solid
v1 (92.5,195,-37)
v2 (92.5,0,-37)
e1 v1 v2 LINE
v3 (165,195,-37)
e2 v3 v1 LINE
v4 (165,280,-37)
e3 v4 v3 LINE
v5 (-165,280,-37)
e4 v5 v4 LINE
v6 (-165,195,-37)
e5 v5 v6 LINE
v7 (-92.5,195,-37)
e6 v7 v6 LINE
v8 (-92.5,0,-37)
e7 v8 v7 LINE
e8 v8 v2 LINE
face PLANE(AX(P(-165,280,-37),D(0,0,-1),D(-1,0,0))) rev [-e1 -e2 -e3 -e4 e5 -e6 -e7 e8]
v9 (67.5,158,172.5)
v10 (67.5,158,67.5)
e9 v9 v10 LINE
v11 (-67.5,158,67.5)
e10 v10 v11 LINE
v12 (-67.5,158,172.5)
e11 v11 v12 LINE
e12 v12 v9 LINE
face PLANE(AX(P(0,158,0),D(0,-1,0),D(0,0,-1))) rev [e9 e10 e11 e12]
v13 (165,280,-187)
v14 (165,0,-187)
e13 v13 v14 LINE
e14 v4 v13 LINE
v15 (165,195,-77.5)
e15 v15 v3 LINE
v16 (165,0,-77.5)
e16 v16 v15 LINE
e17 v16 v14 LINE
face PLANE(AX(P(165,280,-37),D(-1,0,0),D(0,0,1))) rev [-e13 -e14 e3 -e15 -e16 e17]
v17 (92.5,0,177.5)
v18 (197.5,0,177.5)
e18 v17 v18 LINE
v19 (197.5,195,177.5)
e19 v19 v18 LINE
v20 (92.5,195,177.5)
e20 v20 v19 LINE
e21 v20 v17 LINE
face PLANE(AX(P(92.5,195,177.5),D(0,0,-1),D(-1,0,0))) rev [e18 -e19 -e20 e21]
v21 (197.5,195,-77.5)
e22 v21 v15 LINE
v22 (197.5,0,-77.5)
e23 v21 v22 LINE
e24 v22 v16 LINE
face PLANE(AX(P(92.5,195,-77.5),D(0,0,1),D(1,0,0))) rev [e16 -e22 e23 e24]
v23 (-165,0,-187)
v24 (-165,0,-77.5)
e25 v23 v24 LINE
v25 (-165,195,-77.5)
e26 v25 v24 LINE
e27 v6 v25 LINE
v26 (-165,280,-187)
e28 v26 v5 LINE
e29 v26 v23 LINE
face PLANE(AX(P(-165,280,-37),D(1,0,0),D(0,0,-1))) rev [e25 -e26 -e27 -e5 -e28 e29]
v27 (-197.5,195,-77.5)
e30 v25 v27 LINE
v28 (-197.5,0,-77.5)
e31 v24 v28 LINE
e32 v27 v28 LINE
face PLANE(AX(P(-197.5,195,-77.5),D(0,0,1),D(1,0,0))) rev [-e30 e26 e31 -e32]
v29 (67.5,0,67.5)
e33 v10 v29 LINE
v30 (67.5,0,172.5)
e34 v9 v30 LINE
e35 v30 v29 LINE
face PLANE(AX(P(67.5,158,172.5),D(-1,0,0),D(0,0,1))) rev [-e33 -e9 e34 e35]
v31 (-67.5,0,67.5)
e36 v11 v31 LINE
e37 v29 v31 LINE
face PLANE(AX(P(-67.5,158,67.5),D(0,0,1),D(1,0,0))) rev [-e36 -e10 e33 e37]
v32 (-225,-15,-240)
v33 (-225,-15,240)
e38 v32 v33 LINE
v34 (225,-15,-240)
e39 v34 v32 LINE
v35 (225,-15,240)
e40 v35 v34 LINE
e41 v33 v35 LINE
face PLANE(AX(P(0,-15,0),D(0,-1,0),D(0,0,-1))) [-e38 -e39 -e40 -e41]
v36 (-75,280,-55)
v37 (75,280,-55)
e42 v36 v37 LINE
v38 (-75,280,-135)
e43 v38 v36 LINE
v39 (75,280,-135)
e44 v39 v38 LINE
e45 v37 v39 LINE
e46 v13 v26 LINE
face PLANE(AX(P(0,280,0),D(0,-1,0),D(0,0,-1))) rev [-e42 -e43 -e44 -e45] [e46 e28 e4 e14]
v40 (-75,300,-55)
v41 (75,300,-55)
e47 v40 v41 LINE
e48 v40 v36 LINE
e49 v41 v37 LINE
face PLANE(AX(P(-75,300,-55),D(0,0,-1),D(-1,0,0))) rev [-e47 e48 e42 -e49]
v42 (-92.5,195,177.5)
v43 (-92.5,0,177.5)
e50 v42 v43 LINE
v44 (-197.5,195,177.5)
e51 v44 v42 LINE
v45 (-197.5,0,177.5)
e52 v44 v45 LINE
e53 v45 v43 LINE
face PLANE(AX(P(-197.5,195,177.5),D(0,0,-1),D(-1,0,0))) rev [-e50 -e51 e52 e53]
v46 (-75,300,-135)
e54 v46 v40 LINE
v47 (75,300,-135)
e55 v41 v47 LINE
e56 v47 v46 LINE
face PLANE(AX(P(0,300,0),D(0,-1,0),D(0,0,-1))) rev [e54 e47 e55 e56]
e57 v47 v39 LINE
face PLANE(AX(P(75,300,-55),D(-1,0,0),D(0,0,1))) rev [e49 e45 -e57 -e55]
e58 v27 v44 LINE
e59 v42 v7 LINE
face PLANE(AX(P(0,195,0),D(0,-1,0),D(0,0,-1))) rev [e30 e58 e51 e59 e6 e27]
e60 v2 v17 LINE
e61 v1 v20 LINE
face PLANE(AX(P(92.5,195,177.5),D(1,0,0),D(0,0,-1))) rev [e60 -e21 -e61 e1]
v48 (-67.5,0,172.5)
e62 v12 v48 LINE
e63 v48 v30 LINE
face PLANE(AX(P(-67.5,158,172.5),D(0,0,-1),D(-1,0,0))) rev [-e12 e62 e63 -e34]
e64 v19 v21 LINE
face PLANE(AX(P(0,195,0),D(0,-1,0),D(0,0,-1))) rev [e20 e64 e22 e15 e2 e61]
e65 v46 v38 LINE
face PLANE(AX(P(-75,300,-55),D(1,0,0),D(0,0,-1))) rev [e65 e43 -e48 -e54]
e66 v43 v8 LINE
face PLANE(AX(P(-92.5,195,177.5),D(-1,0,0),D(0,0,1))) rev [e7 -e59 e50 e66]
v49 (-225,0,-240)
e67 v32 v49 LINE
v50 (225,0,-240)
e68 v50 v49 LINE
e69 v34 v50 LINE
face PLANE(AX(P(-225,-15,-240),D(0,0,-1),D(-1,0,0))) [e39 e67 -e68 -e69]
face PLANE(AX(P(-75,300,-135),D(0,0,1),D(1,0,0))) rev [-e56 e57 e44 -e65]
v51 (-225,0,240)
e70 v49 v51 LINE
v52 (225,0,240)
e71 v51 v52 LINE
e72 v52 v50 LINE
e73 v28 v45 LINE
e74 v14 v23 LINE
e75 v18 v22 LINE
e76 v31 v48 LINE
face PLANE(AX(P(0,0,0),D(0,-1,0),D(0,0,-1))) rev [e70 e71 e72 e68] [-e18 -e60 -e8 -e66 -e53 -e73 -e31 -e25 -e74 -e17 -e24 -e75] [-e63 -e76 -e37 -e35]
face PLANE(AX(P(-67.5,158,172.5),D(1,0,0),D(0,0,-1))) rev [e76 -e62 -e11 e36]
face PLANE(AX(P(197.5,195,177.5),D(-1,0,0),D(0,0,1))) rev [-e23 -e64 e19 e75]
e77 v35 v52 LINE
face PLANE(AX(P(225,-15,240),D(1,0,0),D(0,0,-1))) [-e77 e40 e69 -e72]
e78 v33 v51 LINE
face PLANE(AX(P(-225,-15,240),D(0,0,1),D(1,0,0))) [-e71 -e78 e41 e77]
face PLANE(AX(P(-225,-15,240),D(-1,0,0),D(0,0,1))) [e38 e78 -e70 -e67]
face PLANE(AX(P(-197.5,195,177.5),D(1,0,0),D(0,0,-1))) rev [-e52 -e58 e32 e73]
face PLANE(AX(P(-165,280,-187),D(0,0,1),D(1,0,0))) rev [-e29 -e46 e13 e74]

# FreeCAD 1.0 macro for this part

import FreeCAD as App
import Part
import Sketcher
from FreeCAD import Vector

doc = App.newDocument("Part")
body = doc.addObject("PartDesign::Body", "Body")

# Sketch on XZ plane
sketch1 = doc.addObject("Sketcher::SketchObject", "Sketch")
body.addObject(sketch1)
sketch1.AttachmentSupport = (doc.XZ_Plane, [""])
sketch1.MapMode = "FlatFace"
sketch1.addGeometry([
    Part.LineSegment(Vector(-225, -240, 0), Vector(-225, 240, 0)),
    Part.LineSegment(Vector(-225, 240, 0), Vector(225, 240, 0)),
    Part.LineSegment(Vector(225, 240, 0), Vector(225, -240, 0)),
    Part.LineSegment(Vector(225, -240, 0), Vector(-225, -240, 0)),
], False)
sketch1.addConstraint([
    Sketcher.Constraint("Coincident", 0, 2, 1, 1),
    Sketcher.Constraint("Coincident", 1, 2, 2, 1),
    Sketcher.Constraint("Coincident", 2, 2, 3, 1),
    Sketcher.Constraint("Coincident", 3, 2, 0, 1),
    Sketcher.Constraint("Vertical", 0),
    Sketcher.Constraint("Horizontal", 1),
    Sketcher.Constraint("Vertical", 2),
    Sketcher.Constraint("Horizontal", 3),
    Sketcher.Constraint("Symmetric", 0, 2, 2, 2, -1, 1),
    Sketcher.Constraint("DistanceX", 1, 1, 1, 2, 450.0),
    Sketcher.Constraint("DistanceY", 0, 1, 0, 2, 480.0),
])
pad1 = doc.addObject("PartDesign::Pad", "Pad")
body.addObject(pad1)
pad1.Profile = sketch1
pad1.Length = 15

# Sketch on XZ plane
sketch2 = doc.addObject("Sketcher::SketchObject", "Sketch001")
body.addObject(sketch2)
sketch2.AttachmentSupport = (doc.XZ_Plane, [""])
sketch2.MapMode = "FlatFace"
sketch2.addGeometry([
    Part.LineSegment(Vector(-165, -187, 0), Vector(-165, -37, 0)),
    Part.LineSegment(Vector(-165, -37, 0), Vector(165, -37, 0)),
    Part.LineSegment(Vector(165, -37, 0), Vector(165, -187, 0)),
    Part.LineSegment(Vector(165, -187, 0), Vector(-165, -187, 0)),
], False)
sketch2.addConstraint([
    Sketcher.Constraint("Coincident", 0, 2, 1, 1),
    Sketcher.Constraint("Coincident", 1, 2, 2, 1),
    Sketcher.Constraint("Coincident", 2, 2, 3, 1),
    Sketcher.Constraint("Coincident", 3, 2, 0, 1),
    Sketcher.Constraint("Vertical", 0),
    Sketcher.Constraint("Horizontal", 1),
    Sketcher.Constraint("Vertical", 2),
    Sketcher.Constraint("Horizontal", 3),
    Sketcher.Constraint("DistanceX", 1, 1, 1, 2, 330.0),
    Sketcher.Constraint("DistanceY", 0, 1, 0, 2, 150.0),
    Sketcher.Constraint("DistanceX", 0, 2, -1, 1, 165.0),
    Sketcher.Constraint("DistanceY", 0, 2, -1, 1, 37.0),
])
pad2 = doc.addObject("PartDesign::Pad", "Pad001")
body.addObject(pad2)
pad2.Profile = sketch2
pad2.Length = 280
pad2.Reversed = True

# Sketch on XZ plane
sketch3 = doc.addObject("Sketcher::SketchObject", "Sketch002")
body.addObject(sketch3)
sketch3.AttachmentSupport = (doc.XZ_Plane, [""])
sketch3.MapMode = "FlatFace"
sketch3.addGeometry([
    Part.LineSegment(Vector(-198, -78, 0), Vector(-198, 178, 0)),
    Part.LineSegment(Vector(-198, 178, 0), Vector(-92, 178, 0)),
    Part.LineSegment(Vector(-92, 178, 0), Vector(-92, -78, 0)),
    Part.LineSegment(Vector(-92, -78, 0), Vector(-198, -78, 0)),
], False)
sketch3.addConstraint([
    Sketcher.Constraint("Coincident", 0, 2, 1, 1),
    Sketcher.Constraint("Coincident", 1, 2, 2, 1),
    Sketcher.Constraint("Coincident", 2, 2, 3, 1),
    Sketcher.Constraint("Coincident", 3, 2, 0, 1),
    Sketcher.Constraint("Vertical", 0),
    Sketcher.Constraint("Horizontal", 1),
    Sketcher.Constraint("Vertical", 2),
    Sketcher.Constraint("Horizontal", 3),
    Sketcher.Constraint("DistanceX", 1, 1, 1, 2, 105.0),
    Sketcher.Constraint("DistanceY", 0, 1, 0, 2, 255.0),
    Sketcher.Constraint("DistanceX", 0, 2, -1, 1, 197.5),
    Sketcher.Constraint("DistanceY", -1, 1, 0, 2, 177.5),
])
pad3 = doc.addObject("PartDesign::Pad", "Pad002")
body.addObject(pad3)
pad3.Profile = sketch3
pad3.Length = 195
pad3.Reversed = True

# Sketch on XZ plane
sketch4 = doc.addObject("Sketcher::SketchObject", "Sketch003")
body.addObject(sketch4)
sketch4.AttachmentSupport = (doc.XZ_Plane, [""])
sketch4.MapMode = "FlatFace"
sketch4.addGeometry([
    Part.LineSegment(Vector(92, -78, 0), Vector(92, 178, 0)),
    Part.LineSegment(Vector(92, 178, 0), Vector(198, 178, 0)),
    Part.LineSegment(Vector(198, 178, 0), Vector(198, -78, 0)),
    Part.LineSegment(Vector(198, -78, 0), Vector(92, -78, 0)),
], False)
sketch4.addConstraint([
    Sketcher.Constraint("Coincident", 0, 2, 1, 1),
    Sketcher.Constraint("Coincident", 1, 2, 2, 1),
    Sketcher.Constraint("Coincident", 2, 2, 3, 1),
    Sketcher.Constraint("Coincident", 3, 2, 0, 1),
    Sketcher.Constraint("Vertical", 0),
    Sketcher.Constraint("Horizontal", 1),
    Sketcher.Constraint("Vertical", 2),
    Sketcher.Constraint("Horizontal", 3),
    Sketcher.Constraint("DistanceX", 1, 1, 1, 2, 105.0),
    Sketcher.Constraint("DistanceY", 0, 1, 0, 2, 255.0),
    Sketcher.Constraint("DistanceX", -1, 1, 0, 2, 92.5),
    Sketcher.Constraint("DistanceY", -1, 1, 0, 2, 177.5),
])
pad4 = doc.addObject("PartDesign::Pad", "Pad003")
body.addObject(pad4)
pad4.Profile = sketch4
pad4.Length = 195
pad4.Reversed = True

# Sketch on XZ plane
sketch5 = doc.addObject("Sketcher::SketchObject", "Sketch004")
body.addObject(sketch5)
sketch5.AttachmentSupport = (doc.XZ_Plane, [""])
sketch5.MapMode = "FlatFace"
sketch5.addGeometry([
    Part.LineSegment(Vector(-68, 68, 0), Vector(-68, 172, 0)),
    Part.LineSegment(Vector(-68, 172, 0), Vector(68, 172, 0)),
    Part.LineSegment(Vector(68, 172, 0), Vector(68, 68, 0)),
    Part.LineSegment(Vector(68, 68, 0), Vector(-68, 68, 0)),
], False)
sketch5.addConstraint([
    Sketcher.Constraint("Coincident", 0, 2, 1, 1),
    Sketcher.Constraint("Coincident", 1, 2, 2, 1),
    Sketcher.Constraint("Coincident", 2, 2, 3, 1),
    Sketcher.Constraint("Coincident", 3, 2, 0, 1),
    Sketcher.Constraint("Vertical", 0),
    Sketcher.Constraint("Horizontal", 1),
    Sketcher.Constraint("Vertical", 2),
    Sketcher.Constraint("Horizontal", 3),
    Sketcher.Constraint("DistanceX", 1, 1, 1, 2, 135.0),
    Sketcher.Constraint("DistanceY", 0, 1, 0, 2, 105.0),
    Sketcher.Constraint("DistanceX", 0, 2, -1, 1, 67.5),
    Sketcher.Constraint("DistanceY", -1, 1, 0, 2, 172.5),
])
pad5 = doc.addObject("PartDesign::Pad", "Pad004")
body.addObject(pad5)
pad5.Profile = sketch5
pad5.Length = 158
pad5.Reversed = True

# Sketch on XZ plane
sketch6 = doc.addObject("Sketcher::SketchObject", "Sketch005")
body.addObject(sketch6)
sketch6.AttachmentSupport = (doc.XZ_Plane, [""])
sketch6.MapMode = "FlatFace"
sketch6.addGeometry([
    Part.LineSegment(Vector(-75, -135, 0), Vector(-75, -55, 0)),
    Part.LineSegment(Vector(-75, -55, 0), Vector(75, -55, 0)),
    Part.LineSegment(Vector(75, -55, 0), Vector(75, -135, 0)),
    Part.LineSegment(Vector(75, -135, 0), Vector(-75, -135, 0)),
], False)
sketch6.addConstraint([
    Sketcher.Constraint("Coincident", 0, 2, 1, 1),
    Sketcher.Constraint("Coincident", 1, 2, 2, 1),
    Sketcher.Constraint("Coincident", 2, 2, 3, 1),
    Sketcher.Constraint("Coincident", 3, 2, 0, 1),
    Sketcher.Constraint("Vertical", 0),
    Sketcher.Constraint("Horizontal", 1),
    Sketcher.Constraint("Vertical", 2),
    Sketcher.Constraint("Horizontal", 3),
    Sketcher.Constraint("DistanceX", 1, 1, 1, 2, 150.0),
    Sketcher.Constraint("DistanceY", 0, 1, 0, 2, 80.0),
    Sketcher.Constraint("DistanceX", 0, 2, -1, 1, 75.0),
    Sketcher.Constraint("DistanceY", 0, 2, -1, 1, 55.0),
])
pad6 = doc.addObject("PartDesign::Pad", "Pad005")
body.addObject(pad6)
pad6.Profile = sketch6
pad6.Length = 300
pad6.Reversed = True

doc.recompute()
